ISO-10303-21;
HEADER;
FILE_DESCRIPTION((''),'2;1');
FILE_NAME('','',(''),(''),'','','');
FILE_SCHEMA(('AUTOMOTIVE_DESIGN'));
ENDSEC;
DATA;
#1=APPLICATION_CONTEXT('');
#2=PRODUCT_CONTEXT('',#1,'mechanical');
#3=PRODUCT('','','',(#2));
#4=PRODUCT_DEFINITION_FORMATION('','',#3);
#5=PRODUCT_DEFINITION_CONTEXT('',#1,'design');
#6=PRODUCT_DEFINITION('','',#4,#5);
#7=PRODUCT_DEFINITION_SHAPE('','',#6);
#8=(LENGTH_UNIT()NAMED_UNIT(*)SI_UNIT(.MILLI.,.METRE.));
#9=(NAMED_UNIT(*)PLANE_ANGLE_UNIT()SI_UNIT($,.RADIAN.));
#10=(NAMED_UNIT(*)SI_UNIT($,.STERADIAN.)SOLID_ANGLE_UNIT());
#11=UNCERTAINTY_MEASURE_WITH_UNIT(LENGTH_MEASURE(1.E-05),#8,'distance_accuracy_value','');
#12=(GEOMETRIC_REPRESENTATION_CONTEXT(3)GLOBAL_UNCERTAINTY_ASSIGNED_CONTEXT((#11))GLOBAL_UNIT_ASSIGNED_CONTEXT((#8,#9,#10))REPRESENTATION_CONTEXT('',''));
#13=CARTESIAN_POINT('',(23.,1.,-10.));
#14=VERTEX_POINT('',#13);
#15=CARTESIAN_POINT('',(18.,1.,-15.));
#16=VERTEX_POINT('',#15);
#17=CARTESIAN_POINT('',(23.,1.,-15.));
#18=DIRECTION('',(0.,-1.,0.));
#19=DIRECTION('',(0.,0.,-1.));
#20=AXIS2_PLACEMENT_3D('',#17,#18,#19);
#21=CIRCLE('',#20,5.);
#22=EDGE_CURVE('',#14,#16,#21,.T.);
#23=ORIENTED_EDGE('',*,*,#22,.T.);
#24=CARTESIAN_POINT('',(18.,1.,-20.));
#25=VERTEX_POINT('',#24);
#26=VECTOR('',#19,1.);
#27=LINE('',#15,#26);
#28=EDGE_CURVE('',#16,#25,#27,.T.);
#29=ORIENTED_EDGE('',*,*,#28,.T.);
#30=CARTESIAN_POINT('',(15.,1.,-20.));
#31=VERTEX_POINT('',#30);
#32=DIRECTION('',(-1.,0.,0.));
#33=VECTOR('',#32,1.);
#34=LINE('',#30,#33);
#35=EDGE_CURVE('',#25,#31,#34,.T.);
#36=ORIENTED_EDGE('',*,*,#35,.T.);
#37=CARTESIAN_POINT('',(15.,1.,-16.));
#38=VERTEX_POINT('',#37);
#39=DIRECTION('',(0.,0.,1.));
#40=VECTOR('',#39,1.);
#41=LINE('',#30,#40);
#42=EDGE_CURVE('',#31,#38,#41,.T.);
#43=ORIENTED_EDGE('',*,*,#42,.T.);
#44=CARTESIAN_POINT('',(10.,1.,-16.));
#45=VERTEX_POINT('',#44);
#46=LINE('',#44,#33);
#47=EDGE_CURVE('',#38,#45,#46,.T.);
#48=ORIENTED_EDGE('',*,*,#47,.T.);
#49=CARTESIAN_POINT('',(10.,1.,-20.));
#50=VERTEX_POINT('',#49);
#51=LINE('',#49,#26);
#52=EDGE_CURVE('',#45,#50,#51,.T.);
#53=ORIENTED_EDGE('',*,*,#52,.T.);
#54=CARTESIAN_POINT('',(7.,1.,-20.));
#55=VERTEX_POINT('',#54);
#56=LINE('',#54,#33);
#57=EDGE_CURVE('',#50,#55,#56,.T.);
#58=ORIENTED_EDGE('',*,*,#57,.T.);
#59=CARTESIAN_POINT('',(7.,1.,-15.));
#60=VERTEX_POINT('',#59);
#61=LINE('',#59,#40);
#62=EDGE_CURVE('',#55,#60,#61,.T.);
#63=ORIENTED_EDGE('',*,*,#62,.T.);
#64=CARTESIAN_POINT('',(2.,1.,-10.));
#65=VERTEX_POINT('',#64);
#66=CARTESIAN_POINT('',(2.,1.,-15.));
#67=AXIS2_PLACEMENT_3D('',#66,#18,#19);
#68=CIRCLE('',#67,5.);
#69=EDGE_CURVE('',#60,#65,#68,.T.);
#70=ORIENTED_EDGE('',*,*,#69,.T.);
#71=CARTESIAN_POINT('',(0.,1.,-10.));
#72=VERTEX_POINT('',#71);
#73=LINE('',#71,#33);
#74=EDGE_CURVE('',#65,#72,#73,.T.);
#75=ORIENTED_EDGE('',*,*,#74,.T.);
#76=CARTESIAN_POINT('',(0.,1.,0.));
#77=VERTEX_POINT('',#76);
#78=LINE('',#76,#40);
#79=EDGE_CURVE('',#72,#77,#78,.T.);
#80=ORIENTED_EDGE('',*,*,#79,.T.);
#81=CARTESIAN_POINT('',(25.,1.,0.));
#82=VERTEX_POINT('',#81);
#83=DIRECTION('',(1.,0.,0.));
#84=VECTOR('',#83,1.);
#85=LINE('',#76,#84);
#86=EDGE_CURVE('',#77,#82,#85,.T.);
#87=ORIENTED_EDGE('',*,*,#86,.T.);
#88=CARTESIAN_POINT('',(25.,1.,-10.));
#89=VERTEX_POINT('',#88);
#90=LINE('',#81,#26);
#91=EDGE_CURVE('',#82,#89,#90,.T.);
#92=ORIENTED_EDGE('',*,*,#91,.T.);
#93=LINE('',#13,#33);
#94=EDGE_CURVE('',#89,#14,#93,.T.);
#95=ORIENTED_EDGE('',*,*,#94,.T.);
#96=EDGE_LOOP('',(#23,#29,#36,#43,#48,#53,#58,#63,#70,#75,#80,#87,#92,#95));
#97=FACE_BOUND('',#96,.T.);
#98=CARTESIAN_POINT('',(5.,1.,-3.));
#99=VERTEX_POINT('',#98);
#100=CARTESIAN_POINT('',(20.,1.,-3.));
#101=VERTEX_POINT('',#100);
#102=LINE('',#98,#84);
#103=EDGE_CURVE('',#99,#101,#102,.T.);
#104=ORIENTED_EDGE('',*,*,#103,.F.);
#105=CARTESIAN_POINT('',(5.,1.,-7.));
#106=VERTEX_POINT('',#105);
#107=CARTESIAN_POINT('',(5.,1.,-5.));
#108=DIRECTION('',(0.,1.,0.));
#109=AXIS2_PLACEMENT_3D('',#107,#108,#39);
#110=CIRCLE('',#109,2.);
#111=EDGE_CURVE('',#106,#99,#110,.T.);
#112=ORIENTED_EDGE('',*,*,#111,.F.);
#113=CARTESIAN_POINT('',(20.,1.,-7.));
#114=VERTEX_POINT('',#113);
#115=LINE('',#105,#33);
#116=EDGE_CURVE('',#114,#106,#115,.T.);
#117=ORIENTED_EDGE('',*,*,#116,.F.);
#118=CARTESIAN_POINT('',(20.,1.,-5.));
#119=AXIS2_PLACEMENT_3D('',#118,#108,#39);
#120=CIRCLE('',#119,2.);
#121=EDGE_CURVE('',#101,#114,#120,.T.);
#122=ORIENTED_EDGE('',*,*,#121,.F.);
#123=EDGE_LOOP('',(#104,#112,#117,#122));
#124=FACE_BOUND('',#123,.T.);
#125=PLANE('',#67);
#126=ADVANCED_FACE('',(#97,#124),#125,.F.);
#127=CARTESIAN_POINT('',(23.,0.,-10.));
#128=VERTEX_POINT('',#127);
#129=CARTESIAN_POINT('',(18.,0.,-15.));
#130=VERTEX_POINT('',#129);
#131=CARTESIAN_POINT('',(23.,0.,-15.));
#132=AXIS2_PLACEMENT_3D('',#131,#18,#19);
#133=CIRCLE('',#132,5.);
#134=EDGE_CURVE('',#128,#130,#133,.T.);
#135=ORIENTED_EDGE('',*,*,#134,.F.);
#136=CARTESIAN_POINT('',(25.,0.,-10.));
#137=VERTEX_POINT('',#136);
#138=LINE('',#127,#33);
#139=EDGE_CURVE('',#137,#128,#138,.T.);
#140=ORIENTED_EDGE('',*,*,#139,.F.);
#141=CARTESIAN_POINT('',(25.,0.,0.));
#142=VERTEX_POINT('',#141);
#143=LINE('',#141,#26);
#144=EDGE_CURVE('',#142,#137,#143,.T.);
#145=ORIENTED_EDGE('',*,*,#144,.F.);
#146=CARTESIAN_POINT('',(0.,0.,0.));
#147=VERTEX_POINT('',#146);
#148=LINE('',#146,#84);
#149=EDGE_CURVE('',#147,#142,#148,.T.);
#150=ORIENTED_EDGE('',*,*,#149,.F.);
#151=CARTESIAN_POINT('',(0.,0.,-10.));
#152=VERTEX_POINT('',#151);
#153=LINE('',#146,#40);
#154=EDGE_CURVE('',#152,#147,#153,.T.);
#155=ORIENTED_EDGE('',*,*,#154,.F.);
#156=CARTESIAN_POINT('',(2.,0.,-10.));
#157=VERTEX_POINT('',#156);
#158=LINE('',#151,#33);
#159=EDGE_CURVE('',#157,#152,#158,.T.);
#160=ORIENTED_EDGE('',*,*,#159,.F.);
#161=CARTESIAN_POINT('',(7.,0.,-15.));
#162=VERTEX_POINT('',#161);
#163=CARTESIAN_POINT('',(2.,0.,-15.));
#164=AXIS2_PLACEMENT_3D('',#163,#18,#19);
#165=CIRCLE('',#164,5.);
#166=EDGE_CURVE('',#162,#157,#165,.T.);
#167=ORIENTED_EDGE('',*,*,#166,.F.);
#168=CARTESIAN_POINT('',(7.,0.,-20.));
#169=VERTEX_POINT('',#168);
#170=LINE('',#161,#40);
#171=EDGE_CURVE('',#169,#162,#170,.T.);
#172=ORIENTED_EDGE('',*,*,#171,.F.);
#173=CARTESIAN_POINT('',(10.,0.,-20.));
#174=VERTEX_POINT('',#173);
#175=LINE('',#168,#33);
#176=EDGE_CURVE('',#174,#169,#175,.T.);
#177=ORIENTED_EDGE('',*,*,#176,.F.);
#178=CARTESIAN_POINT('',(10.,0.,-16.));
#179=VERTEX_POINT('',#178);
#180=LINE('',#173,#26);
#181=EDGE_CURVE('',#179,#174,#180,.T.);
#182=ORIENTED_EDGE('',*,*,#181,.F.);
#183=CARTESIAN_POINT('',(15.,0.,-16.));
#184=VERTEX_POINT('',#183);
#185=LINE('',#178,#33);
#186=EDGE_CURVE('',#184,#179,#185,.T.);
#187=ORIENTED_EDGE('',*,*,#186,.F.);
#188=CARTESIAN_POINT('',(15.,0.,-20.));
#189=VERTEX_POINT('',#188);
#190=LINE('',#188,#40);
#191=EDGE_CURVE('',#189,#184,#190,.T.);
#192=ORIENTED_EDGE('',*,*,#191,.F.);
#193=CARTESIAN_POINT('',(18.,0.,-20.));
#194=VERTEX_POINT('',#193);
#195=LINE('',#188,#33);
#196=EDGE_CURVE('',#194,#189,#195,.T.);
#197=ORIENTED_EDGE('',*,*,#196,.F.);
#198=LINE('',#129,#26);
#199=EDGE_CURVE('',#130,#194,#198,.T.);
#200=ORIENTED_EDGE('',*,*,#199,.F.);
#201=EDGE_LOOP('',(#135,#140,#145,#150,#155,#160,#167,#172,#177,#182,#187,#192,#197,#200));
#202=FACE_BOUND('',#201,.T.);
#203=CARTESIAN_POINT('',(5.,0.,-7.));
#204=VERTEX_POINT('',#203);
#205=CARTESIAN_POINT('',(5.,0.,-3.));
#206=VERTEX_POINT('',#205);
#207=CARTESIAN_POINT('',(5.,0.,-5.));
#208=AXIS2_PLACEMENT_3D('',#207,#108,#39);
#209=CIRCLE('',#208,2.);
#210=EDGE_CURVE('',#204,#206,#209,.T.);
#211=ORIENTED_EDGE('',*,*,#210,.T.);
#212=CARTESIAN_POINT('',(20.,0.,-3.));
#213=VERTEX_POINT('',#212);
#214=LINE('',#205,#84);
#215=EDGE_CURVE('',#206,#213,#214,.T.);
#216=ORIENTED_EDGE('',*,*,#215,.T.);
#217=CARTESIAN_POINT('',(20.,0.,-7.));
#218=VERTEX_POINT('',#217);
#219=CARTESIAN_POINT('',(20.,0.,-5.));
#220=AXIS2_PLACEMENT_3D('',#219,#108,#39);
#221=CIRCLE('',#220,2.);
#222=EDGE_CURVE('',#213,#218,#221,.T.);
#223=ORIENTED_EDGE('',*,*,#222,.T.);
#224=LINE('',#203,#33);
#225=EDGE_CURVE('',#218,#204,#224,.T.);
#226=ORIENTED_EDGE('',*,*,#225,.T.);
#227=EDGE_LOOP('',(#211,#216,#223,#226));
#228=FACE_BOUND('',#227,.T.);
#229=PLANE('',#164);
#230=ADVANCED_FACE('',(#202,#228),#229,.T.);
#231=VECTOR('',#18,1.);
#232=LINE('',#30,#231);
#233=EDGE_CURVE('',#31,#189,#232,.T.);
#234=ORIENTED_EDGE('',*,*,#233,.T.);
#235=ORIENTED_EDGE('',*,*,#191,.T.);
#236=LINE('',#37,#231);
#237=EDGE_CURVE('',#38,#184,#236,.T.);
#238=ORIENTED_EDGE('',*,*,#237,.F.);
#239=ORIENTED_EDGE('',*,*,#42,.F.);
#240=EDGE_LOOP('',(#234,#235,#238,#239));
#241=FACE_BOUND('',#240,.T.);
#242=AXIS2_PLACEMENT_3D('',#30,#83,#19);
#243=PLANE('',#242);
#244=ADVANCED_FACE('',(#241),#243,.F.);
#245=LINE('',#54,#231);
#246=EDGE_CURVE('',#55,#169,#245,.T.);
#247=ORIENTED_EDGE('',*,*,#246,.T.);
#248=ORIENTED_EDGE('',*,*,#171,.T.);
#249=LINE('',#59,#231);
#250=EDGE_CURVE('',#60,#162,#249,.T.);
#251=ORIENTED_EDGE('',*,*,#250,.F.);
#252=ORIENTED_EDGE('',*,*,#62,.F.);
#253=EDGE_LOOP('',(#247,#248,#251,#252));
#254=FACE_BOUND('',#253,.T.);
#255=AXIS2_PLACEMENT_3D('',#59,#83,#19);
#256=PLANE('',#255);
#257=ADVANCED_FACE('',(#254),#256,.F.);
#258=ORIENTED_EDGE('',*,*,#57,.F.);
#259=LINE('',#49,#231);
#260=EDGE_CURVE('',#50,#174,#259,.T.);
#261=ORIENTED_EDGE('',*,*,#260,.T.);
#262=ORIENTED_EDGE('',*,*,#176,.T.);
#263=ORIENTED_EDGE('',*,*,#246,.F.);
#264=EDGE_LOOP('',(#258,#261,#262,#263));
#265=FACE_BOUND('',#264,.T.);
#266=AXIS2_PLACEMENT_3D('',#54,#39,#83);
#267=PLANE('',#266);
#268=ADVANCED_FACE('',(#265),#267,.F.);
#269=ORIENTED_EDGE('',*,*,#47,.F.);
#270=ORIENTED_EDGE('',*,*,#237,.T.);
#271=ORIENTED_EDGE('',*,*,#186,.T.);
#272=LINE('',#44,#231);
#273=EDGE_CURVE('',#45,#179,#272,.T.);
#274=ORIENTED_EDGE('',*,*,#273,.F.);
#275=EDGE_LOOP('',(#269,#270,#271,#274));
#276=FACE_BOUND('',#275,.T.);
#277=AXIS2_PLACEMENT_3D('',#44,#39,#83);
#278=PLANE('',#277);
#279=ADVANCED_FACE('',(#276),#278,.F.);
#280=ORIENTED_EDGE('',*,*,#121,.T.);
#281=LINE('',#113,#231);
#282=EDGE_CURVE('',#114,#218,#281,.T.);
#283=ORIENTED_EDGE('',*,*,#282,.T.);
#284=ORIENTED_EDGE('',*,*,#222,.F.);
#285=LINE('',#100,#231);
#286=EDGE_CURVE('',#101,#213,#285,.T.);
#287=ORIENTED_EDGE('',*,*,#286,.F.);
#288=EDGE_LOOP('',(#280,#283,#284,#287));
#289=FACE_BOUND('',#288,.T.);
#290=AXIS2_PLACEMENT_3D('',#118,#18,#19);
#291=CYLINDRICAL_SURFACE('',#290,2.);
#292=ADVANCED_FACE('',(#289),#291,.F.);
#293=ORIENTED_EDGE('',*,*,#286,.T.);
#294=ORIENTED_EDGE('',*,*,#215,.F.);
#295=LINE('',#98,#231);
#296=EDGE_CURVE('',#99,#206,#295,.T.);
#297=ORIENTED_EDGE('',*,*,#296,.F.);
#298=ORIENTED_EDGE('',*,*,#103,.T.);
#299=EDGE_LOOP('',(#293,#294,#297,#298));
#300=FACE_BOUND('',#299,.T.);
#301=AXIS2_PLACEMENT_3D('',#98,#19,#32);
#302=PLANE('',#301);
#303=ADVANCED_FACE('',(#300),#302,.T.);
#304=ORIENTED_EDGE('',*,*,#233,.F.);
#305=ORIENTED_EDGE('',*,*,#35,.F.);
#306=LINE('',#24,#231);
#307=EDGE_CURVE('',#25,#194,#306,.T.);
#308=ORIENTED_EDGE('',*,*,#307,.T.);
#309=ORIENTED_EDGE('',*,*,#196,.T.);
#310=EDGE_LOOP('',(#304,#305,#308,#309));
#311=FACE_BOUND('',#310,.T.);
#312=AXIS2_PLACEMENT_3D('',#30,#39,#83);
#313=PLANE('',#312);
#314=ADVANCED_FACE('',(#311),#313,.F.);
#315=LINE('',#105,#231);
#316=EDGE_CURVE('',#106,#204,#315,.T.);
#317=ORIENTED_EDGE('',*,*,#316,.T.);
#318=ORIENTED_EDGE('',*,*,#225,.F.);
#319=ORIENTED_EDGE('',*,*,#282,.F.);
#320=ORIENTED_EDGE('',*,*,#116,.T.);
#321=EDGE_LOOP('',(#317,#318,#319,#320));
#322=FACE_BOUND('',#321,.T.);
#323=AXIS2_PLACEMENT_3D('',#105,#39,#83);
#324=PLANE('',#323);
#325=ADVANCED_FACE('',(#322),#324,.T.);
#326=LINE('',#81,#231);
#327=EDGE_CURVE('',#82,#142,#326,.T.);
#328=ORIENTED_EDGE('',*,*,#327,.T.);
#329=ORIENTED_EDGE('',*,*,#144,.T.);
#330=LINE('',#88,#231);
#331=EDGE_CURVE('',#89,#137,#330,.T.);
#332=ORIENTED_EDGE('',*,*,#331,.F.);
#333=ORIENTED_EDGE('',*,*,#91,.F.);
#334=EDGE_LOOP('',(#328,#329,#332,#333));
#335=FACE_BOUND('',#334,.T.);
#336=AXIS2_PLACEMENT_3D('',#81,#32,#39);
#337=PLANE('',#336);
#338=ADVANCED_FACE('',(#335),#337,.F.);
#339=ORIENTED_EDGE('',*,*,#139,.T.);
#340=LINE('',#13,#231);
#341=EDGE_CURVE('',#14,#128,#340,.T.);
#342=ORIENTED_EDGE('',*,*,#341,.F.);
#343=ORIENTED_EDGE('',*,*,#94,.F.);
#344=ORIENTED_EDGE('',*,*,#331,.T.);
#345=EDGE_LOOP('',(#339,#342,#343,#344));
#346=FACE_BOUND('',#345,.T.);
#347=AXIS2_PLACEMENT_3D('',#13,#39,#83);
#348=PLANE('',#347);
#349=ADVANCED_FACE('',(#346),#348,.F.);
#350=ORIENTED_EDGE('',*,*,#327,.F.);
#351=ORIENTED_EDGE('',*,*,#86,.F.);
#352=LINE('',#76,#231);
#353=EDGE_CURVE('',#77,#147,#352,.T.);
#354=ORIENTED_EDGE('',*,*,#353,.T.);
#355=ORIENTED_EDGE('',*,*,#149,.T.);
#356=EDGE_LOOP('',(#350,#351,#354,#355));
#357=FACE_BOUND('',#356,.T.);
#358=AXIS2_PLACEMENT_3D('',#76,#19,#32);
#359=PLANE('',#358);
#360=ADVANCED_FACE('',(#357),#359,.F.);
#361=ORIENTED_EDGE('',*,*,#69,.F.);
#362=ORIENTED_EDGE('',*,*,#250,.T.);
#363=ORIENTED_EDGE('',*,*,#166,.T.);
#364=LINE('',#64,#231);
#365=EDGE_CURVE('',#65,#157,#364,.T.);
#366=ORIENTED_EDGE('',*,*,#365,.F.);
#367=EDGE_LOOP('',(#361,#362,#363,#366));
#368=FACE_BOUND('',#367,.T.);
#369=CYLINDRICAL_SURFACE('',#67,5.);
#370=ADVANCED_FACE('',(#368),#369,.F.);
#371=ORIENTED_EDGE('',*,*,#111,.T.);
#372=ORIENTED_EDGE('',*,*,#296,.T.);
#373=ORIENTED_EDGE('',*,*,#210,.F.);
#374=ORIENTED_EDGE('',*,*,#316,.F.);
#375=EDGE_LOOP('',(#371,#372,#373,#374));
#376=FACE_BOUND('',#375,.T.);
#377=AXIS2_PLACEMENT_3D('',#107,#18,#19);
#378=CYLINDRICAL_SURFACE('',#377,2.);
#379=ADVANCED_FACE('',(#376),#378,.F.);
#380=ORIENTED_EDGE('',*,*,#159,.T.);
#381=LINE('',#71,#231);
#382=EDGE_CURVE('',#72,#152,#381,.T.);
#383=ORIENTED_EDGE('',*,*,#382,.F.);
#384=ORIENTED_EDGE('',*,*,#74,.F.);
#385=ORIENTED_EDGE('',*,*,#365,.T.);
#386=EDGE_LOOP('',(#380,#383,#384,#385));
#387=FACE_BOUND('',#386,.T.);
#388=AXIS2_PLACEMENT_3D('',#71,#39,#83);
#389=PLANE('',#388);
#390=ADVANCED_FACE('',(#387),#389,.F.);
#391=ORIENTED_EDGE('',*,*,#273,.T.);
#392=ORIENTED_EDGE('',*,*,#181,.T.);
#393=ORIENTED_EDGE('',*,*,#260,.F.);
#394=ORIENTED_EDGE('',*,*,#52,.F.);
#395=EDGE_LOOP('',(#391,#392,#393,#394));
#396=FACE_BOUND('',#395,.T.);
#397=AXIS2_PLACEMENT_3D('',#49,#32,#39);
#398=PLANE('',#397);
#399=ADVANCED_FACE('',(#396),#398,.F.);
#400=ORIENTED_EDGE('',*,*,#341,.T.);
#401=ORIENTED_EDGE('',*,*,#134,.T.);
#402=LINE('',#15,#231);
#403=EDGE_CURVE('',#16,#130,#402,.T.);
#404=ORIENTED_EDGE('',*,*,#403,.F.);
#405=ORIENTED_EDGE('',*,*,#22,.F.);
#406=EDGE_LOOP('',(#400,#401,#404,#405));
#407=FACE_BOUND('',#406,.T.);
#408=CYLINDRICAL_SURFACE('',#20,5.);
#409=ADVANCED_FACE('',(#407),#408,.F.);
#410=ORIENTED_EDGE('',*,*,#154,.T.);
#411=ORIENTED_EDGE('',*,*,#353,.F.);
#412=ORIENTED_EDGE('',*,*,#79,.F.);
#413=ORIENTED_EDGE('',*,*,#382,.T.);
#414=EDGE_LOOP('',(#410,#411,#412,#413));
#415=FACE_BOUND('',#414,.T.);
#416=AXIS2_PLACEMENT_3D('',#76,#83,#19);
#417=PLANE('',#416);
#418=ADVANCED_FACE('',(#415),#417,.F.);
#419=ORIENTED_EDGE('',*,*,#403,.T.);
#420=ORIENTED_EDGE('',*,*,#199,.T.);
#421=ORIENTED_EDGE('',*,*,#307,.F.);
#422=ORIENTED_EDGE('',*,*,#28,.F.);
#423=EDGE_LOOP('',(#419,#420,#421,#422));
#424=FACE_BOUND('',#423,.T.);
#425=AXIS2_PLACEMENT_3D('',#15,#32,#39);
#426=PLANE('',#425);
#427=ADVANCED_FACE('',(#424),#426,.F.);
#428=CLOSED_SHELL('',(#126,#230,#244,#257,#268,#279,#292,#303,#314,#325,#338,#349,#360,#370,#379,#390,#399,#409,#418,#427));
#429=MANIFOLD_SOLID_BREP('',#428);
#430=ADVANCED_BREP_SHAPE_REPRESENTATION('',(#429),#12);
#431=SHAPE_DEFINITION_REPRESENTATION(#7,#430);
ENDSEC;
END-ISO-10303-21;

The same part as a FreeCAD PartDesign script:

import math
import FreeCAD as App
import Part
import Sketcher

V = App.Vector
Q = App.Units.Quantity

doc = App.newDocument("Part")
body = doc.addObject("PartDesign::Body", "Body")

# Sketch on XZ plane
sketch1 = doc.addObject("Sketcher::SketchObject", "Sketch")
body.addObject(sketch1)
sketch1.AttachmentSupport = (doc.XZ_Plane, [""])
sketch1.MapMode = "FlatFace"
sketch1.addGeometry(Part.LineSegment(V(0, 0, 0), V(25, 0, 0)), False)
sketch1.addGeometry(Part.LineSegment(V(25, 0, 0), V(25, -10, 0)), False)
sketch1.addGeometry(Part.LineSegment(V(25, -10, 0), V(23, -10, 0)), False)
sketch1.addGeometry(Part.ArcOfCircle(Part.Circle(V(23, -15, 0), V(0, 0, 1), 5), math.radians(90), math.radians(180)), False)
sketch1.addGeometry(Part.LineSegment(V(18, -15, 0), V(18, -20, 0)), False)
sketch1.addGeometry(Part.LineSegment(V(18, -20, 0), V(15, -20, 0)), False)
sketch1.addGeometry(Part.LineSegment(V(15, -20, 0), V(15, -16, 0)), False)
sketch1.addGeometry(Part.LineSegment(V(15, -16, 0), V(10, -16, 0)), False)
sketch1.addGeometry(Part.LineSegment(V(10, -16, 0), V(10, -20, 0)), False)
sketch1.addGeometry(Part.LineSegment(V(10, -20, 0), V(7, -20, 0)), False)
sketch1.addGeometry(Part.LineSegment(V(7, -20, 0), V(7, -15, 0)), False)
sketch1.addGeometry(Part.ArcOfCircle(Part.Circle(V(2, -15, 0), V(0, 0, 1), 5), math.radians(0), math.radians(90)), False)
sketch1.addGeometry(Part.LineSegment(V(2, -10, 0), V(0, -10, 0)), False)
sketch1.addGeometry(Part.LineSegment(V(0, -10, 0), V(0, 0, 0)), False)
sketch1.addGeometry(Part.ArcOfCircle(Part.Circle(V(5, -5, 0), V(0, 0, 1), 2), math.radians(90), math.radians(270)), False)
sketch1.addGeometry(Part.LineSegment(V(5, -7, 0), V(20, -7, 0)), False)
sketch1.addGeometry(Part.ArcOfCircle(Part.Circle(V(20, -5, 0), V(0, 0, 1), 2), math.radians(-90), math.radians(90)), False)
sketch1.addGeometry(Part.LineSegment(V(20, -3, 0), V(5, -3, 0)), False)
sketch1.addConstraint(Sketcher.Constraint("Coincident", 0, 2, 1, 1))
sketch1.addConstraint(Sketcher.Constraint("Coincident", 1, 2, 2, 1))
sketch1.addConstraint(Sketcher.Constraint("Tangent", 2, 2, 3, 1))
sketch1.addConstraint(Sketcher.Constraint("Tangent", 3, 2, 4, 1))
sketch1.addConstraint(Sketcher.Constraint("Coincident", 4, 2, 5, 1))
sketch1.addConstraint(Sketcher.Constraint("Coincident", 5, 2, 6, 1))
sketch1.addConstraint(Sketcher.Constraint("Coincident", 6, 2, 7, 1))
sketch1.addConstraint(Sketcher.Constraint("Coincident", 7, 2, 8, 1))
sketch1.addConstraint(Sketcher.Constraint("Coincident", 8, 2, 9, 1))
sketch1.addConstraint(Sketcher.Constraint("Coincident", 9, 2, 10, 1))
sketch1.addConstraint(Sketcher.Constraint("Tangent", 10, 2, 11, 1))
sketch1.addConstraint(Sketcher.Constraint("Tangent", 11, 2, 12, 1))
sketch1.addConstraint(Sketcher.Constraint("Coincident", 12, 2, 13, 1))
sketch1.addConstraint(Sketcher.Constraint("Coincident", 13, 2, 0, 1))
sketch1.addConstraint(Sketcher.Constraint("Tangent", 14, 2, 15, 1))
sketch1.addConstraint(Sketcher.Constraint("Tangent", 15, 2, 16, 1))
sketch1.addConstraint(Sketcher.Constraint("Tangent", 16, 2, 17, 1))
sketch1.addConstraint(Sketcher.Constraint("Tangent", 17, 2, 14, 1))
sketch1.addConstraint(Sketcher.Constraint("Horizontal", 0))
sketch1.addConstraint(Sketcher.Constraint("Vertical", 1))
sketch1.addConstraint(Sketcher.Constraint("Horizontal", 2))
sketch1.addConstraint(Sketcher.Constraint("Vertical", 4))
sketch1.addConstraint(Sketcher.Constraint("Horizontal", 5))
sketch1.addConstraint(Sketcher.Constraint("Vertical", 6))
sketch1.addConstraint(Sketcher.Constraint("Horizontal", 7))
sketch1.addConstraint(Sketcher.Constraint("Vertical", 8))
sketch1.addConstraint(Sketcher.Constraint("Horizontal", 9))
sketch1.addConstraint(Sketcher.Constraint("Vertical", 10))
sketch1.addConstraint(Sketcher.Constraint("Horizontal", 12))
sketch1.addConstraint(Sketcher.Constraint("Vertical", 13))
sketch1.addConstraint(Sketcher.Constraint("Horizontal", 15))
sketch1.addConstraint(Sketcher.Constraint("Horizontal", 17))
sketch1.addConstraint(Sketcher.Constraint("Coincident", 13, 2, -1, 1))
sketch1.addConstraint(Sketcher.Constraint("Equal", 3, 11))
sketch1.addConstraint(Sketcher.Constraint("Horizontal", 3, 3, 11, 3))
sketch1.addConstraint(Sketcher.Constraint("Horizontal", 5, 2, 8, 2))
sketch1.addConstraint(Sketcher.Constraint("Equal", 5, 9))
sketch1.addConstraint(Sketcher.Constraint("Equal", 2, 12))
sketch1.addConstraint(Sketcher.Constraint("Equal", 7, 4))
sketch1.addConstraint(Sketcher.Constraint("Radius", 3, Q("5 mm")))
sketch1.addConstraint(Sketcher.Constraint("Radius", 14, Q("2 mm")))
sketch1.addConstraint(Sketcher.Constraint("DistanceX", 0, 1, 0, 2, Q("25 mm")))
sketch1.addConstraint(Sketcher.Constraint("DistanceX", 2, 2, 2, 1, Q("2 mm")))
sketch1.addConstraint(Sketcher.Constraint("DistanceX", 5, 2, 5, 1, Q("3 mm")))
sketch1.addConstraint(Sketcher.Constraint("DistanceX", 15, 1, 15, 2, Q("15 mm")))
sketch1.addConstraint(Sketcher.Constraint("DistanceY", 1, 2, 1, 1, Q("10 mm")))
sketch1.addConstraint(Sketcher.Constraint("DistanceY", 6, 1, 6, 2, Q("4 mm")))
sketch1.addConstraint(Sketcher.Constraint("DistanceX", -1, 1, 14, 3, Q("5 mm")))
sketch1.addConstraint(Sketcher.Constraint("DistanceY", 14, 3, -1, 1, Q("5 mm")))
pad1 = doc.addObject("PartDesign::Pad", "Pad")
body.addObject(pad1)
pad1.Profile = sketch1
pad1.Length = 1
pad1.Reversed = True

doc.recompute()
